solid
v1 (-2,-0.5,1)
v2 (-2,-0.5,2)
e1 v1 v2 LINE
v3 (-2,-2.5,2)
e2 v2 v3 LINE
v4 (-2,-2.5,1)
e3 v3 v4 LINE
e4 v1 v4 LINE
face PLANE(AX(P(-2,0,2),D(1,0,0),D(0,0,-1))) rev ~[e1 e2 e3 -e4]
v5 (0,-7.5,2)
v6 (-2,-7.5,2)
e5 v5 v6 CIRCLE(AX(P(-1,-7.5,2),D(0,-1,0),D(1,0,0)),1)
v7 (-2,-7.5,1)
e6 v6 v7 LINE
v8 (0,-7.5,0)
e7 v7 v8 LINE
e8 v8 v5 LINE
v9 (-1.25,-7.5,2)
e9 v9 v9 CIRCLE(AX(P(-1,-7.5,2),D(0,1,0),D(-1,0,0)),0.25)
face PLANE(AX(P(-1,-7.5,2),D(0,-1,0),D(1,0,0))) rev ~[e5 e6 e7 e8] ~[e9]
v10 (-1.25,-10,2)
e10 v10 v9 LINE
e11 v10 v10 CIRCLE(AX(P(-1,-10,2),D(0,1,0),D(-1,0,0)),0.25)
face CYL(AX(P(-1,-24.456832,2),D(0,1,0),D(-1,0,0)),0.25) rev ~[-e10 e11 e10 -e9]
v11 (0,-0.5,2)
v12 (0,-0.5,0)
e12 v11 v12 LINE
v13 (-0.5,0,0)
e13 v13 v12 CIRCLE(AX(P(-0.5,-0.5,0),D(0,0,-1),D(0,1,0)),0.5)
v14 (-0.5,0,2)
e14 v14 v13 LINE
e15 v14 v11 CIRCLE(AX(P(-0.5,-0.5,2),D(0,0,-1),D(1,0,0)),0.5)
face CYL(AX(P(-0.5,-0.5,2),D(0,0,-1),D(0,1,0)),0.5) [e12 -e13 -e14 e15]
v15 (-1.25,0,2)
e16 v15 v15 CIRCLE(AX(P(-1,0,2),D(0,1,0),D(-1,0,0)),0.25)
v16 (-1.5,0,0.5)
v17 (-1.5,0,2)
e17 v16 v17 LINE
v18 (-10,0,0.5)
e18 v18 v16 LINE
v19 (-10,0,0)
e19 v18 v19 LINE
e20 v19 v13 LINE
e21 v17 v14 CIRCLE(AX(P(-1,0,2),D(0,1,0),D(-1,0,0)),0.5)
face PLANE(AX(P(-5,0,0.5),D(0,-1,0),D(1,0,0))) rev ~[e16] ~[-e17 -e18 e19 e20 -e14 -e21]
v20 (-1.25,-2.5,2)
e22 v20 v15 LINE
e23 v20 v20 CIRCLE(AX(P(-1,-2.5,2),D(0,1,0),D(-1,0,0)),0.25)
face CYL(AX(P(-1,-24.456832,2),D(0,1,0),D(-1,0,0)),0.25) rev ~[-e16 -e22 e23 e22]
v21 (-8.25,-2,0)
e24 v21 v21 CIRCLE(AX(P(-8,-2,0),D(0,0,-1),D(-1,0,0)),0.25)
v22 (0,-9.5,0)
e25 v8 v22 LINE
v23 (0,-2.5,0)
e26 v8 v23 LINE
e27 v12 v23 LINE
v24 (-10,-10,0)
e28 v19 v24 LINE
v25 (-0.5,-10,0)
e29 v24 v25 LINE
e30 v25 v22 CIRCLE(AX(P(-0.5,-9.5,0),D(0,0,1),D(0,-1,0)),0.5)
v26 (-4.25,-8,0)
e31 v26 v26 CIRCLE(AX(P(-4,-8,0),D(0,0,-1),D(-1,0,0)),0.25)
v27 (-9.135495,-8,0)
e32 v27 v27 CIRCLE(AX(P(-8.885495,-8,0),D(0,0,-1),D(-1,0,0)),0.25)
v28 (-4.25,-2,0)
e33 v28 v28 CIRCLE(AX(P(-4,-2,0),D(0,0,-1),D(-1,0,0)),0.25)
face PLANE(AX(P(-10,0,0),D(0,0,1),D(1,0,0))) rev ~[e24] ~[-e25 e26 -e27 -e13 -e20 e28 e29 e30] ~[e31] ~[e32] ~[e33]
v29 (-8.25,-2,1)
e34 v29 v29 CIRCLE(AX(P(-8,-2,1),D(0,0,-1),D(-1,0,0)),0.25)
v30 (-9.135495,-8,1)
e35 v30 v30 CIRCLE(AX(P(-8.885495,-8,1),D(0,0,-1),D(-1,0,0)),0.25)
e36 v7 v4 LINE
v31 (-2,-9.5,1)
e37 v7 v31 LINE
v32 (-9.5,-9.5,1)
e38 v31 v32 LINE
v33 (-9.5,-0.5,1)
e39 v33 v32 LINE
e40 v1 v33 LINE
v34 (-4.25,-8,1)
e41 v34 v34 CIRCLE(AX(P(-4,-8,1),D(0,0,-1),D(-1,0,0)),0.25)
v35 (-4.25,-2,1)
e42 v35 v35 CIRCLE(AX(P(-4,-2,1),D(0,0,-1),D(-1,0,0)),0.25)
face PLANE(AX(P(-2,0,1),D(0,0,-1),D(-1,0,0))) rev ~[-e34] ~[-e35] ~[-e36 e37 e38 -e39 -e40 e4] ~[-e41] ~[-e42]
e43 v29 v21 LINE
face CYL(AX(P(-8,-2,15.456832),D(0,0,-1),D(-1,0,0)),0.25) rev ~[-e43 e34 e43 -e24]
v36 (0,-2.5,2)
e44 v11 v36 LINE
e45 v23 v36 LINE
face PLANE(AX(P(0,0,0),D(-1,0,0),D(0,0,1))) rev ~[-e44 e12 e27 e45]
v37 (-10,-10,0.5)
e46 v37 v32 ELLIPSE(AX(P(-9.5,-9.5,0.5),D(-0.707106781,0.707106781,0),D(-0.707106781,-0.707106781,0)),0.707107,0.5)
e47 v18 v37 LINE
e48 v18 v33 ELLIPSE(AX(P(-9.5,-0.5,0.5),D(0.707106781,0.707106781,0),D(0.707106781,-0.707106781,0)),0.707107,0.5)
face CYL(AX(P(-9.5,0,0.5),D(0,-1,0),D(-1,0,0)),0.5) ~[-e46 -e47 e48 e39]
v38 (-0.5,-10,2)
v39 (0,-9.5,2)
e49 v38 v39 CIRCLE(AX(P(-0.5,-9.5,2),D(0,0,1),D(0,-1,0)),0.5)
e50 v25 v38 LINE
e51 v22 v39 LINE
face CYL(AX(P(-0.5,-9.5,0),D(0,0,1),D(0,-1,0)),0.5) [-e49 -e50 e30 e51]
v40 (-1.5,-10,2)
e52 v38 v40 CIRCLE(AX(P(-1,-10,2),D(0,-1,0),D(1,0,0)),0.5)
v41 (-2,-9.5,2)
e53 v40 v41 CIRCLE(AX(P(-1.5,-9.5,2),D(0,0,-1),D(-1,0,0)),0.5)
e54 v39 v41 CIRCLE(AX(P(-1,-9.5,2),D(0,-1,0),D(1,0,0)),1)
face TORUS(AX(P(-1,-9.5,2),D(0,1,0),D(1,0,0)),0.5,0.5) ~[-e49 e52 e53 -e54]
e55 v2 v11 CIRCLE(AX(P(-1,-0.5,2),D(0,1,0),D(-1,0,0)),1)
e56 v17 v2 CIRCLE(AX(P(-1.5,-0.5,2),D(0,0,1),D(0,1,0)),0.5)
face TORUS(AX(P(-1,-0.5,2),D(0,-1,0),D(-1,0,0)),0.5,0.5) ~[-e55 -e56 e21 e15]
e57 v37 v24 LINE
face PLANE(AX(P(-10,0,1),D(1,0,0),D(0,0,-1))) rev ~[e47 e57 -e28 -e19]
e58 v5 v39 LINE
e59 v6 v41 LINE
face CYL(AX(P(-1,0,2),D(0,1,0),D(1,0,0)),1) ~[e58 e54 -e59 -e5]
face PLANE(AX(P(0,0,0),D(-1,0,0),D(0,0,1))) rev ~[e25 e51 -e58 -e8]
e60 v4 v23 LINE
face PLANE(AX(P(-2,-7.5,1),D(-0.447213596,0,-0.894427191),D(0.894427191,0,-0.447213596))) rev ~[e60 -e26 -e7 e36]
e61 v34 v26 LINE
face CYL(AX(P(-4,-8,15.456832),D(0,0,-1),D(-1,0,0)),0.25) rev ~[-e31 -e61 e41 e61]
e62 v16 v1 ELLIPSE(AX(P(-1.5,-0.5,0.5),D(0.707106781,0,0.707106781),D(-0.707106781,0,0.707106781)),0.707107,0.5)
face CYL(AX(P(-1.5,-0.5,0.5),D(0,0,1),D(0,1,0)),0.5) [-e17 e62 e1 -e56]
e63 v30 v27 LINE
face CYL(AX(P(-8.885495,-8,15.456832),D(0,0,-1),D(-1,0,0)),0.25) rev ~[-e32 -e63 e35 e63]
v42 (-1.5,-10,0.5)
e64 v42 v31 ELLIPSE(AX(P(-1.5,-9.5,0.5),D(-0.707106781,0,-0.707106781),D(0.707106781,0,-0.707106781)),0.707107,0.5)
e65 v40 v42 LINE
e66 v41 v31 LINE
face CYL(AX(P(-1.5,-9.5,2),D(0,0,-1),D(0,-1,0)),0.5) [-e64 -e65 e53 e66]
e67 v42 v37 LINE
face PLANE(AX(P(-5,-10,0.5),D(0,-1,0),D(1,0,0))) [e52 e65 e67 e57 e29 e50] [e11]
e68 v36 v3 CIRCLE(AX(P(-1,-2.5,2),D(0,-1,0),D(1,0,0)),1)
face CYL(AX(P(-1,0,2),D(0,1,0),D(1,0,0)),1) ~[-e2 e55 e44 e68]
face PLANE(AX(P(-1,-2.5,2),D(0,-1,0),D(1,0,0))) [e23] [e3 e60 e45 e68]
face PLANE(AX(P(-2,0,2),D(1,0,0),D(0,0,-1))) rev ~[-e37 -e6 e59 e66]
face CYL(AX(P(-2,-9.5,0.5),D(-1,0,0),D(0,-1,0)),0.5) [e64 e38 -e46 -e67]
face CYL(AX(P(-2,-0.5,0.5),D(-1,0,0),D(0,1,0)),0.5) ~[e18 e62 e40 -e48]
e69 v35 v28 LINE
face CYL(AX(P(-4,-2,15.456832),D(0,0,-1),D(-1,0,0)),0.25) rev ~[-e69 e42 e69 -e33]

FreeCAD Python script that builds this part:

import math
import FreeCAD as App
import Part
import Sketcher
Q = App.Units.Quantity


def edges_at(feature, points):
    """Names of the edges that pass closest to the given points."""
    edges = feature.Shape.Edges
    near = lambda p: min(range(len(edges)), key=lambda i: edges[i].distToShape(Part.Vertex(*p))[0])
    return sorted({f"Edge{near(p) + 1}" for p in points})

doc = App.newDocument("Part")
params = doc.addObject("Spreadsheet::Sheet", "Params")
for row, (alias, value) in enumerate([
    ("sketch1_radius", "1 mm"),
    ("sketch1_width", "10 mm"),
    ("sketch1_height", "2 mm"),
    ("pad1_length", "10 mm"),
    ("sketch2_diameter", "0.5 mm"),
    ("hole_diameter", "0.5 mm"),
    ("sketch3_diameter", "0.5 mm"),
    ("hole2_diameter", "0.5 mm"),
    ("sketch4_radius", "1 mm"),
    ("sketch4_height", "1 mm"),
    ("sketch4_height2", "2 mm"),
    ("pocket1_length", "5 mm"),
    ("fillet_radius", "0.5 mm"),
    ("fillet2_radius", "0.5 mm"),
    ("fillet3_radius", "0.5 mm"),
], start=1):
    params.set(f"A{row}", alias)
    params.set(f"B{row}", "=" + value)
    params.setAlias(f"B{row}", alias)

body = doc.addObject("PartDesign::Body", "Body")

# Sketch on XZ plane
sketch1 = body.newObject("Sketcher::SketchObject", "Sketch")
sketch1.AttachmentSupport = (doc.getObject("XZ_Plane"), [""])
sketch1.MapMode = "FlatFace"
sketch1.addGeometry(Part.LineSegment(App.Vector(-10, 0, 0), App.Vector(0, 0, 0)), False)
sketch1.addGeometry(Part.LineSegment(App.Vector(0, 0, 0), App.Vector(0, 2, 0)), False)
sketch1.addGeometry(Part.ArcOfCircle(Part.Circle(App.Vector(-1, 2, 0), App.Vector(0, 0, 1), 1), math.radians(0), math.radians(180)), False)
sketch1.addGeometry(Part.LineSegment(App.Vector(-2, 2, 0), App.Vector(-2, 1, 0)), False)
sketch1.addGeometry(Part.LineSegment(App.Vector(-2, 1, 0), App.Vector(-10, 1, 0)), False)
sketch1.addGeometry(Part.LineSegment(App.Vector(-10, 1, 0), App.Vector(-10, 0, 0)), False)
sketch1.addConstraint(Sketcher.Constraint("Coincident", 0, 2, 1, 1))
sketch1.addConstraint(Sketcher.Constraint("Tangent", 1, 2, 2, 1))
sketch1.addConstraint(Sketcher.Constraint("Tangent", 2, 2, 3, 1))
sketch1.addConstraint(Sketcher.Constraint("Coincident", 3, 2, 4, 1))
sketch1.addConstraint(Sketcher.Constraint("Coincident", 4, 2, 5, 1))
sketch1.addConstraint(Sketcher.Constraint("Coincident", 5, 2, 0, 1))
sketch1.addConstraint(Sketcher.Constraint("Horizontal", 0))
sketch1.addConstraint(Sketcher.Constraint("Vertical", 1))
sketch1.addConstraint(Sketcher.Constraint("Vertical", 3))
sketch1.addConstraint(Sketcher.Constraint("Horizontal", 4))
sketch1.addConstraint(Sketcher.Constraint("Vertical", 5))
sketch1.addConstraint(Sketcher.Constraint("Coincident", 0, 2, -1, 1))
sketch1.addConstraint(Sketcher.Constraint("Equal", 3, 5))
sketch1.addConstraint(Sketcher.Constraint("Radius", 2, Q("1 mm")))
sketch1.addConstraint(Sketcher.Constraint("DistanceX", 0, 1, 0, 2, Q("10 mm")))
sketch1.addConstraint(Sketcher.Constraint("DistanceY", 1, 1, 1, 2, Q("2 mm")))
sketch1.setExpression("Constraints[13]", "Params.sketch1_radius")
sketch1.setExpression("Constraints[14]", "Params.sketch1_width")
sketch1.setExpression("Constraints[15]", "Params.sketch1_height")
pad1 = body.newObject("PartDesign::Pad", "Pad")
pad1.Profile = sketch1
pad1.setExpression("Length", "Params.pad1_length")

# Sketch on XY plane
sketch2 = body.newObject("Sketcher::SketchObject", "Sketch001")
sketch2.AttachmentSupport = (doc.getObject("XY_Plane"), [""])
sketch2.MapMode = "FlatFace"
sketch2.AttachmentOffset = App.Placement(App.Vector(0, 0, 1), App.Rotation())
sketch2.addGeometry(Part.Circle(App.Vector(-8, -2, 0), App.Vector(0, 0, 1), 0.25), False)
sketch2.addGeometry(Part.Circle(App.Vector(-8.89, -8, 0), App.Vector(0, 0, 1), 0.25), False)
sketch2.addGeometry(Part.Circle(App.Vector(-4, -8, 0), App.Vector(0, 0, 1), 0.25), False)
sketch2.addGeometry(Part.Circle(App.Vector(-4, -2, 0), App.Vector(0, 0, 1), 0.25), False)
sketch2.addConstraint(Sketcher.Constraint("Equal", 0, 1))
sketch2.addConstraint(Sketcher.Constraint("Equal", 1, 2))
sketch2.addConstraint(Sketcher.Constraint("Equal", 2, 3))
sketch2.addConstraint(Sketcher.Constraint("Horizontal", 1, 3, 2, 3))
sketch2.addConstraint(Sketcher.Constraint("Horizontal", 0, 3, 3, 3))
sketch2.addConstraint(Sketcher.Constraint("Vertical", 2, 3, 3, 3))
sketch2.addConstraint(Sketcher.Constraint("Diameter", 0, Q("0.5 mm")))
sketch2.addConstraint(Sketcher.Constraint("DistanceX", 0, 3, -1, 1, Q("8 mm")))
sketch2.addConstraint(Sketcher.Constraint("DistanceY", 0, 3, -1, 1, Q("2 mm")))
sketch2.addConstraint(Sketcher.Constraint("DistanceY", 1, 3, -1, 1, Q("8 mm")))
sketch2.addConstraint(Sketcher.Constraint("DistanceX", 2, 3, -1, 1, Q("4 mm")))
sketch2.addConstraint(Sketcher.Constraint("DistanceX", 1, 3, -1, 1, Q("8.885495 mm")))
sketch2.setExpression("Constraints[6]", "Params.sketch2_diameter")
doc.recompute()
hole = body.newObject("PartDesign::Hole", "Hole")
hole.Profile = sketch2
hole.ThreadType = "None"
hole.setExpression("Diameter", "Params.hole_diameter")
hole.DepthType = "ThroughAll"

# Sketch on XZ plane
sketch3 = body.newObject("Sketcher::SketchObject", "Sketch002")
sketch3.AttachmentSupport = (doc.getObject("XZ_Plane"), [""])
sketch3.MapMode = "FlatFace"
sketch3.AttachmentOffset = App.Placement(App.Vector(0, 0, 10), App.Rotation())
sketch3.addGeometry(Part.Circle(App.Vector(-1, 2, 0), App.Vector(0, 0, 1), 0.25), False)
sketch3.addConstraint(Sketcher.Constraint("Diameter", 0, Q("0.5 mm")))
sketch3.addConstraint(Sketcher.Constraint("DistanceX", 0, 3, -1, 1, Q("1 mm")))
sketch3.addConstraint(Sketcher.Constraint("DistanceY", -1, 1, 0, 3, Q("2 mm")))
sketch3.setExpression("Constraints[0]", "Params.sketch3_diameter")
doc.recompute()
hole2 = body.newObject("PartDesign::Hole", "Hole001")
hole2.Profile = sketch3
hole2.ThreadType = "None"
hole2.setExpression("Diameter", "Params.hole2_diameter")
hole2.DepthType = "ThroughAll"

# Sketch on XZ plane
sketch4 = body.newObject("Sketcher::SketchObject", "Sketch003")
sketch4.AttachmentSupport = (doc.getObject("XZ_Plane"), [""])
sketch4.MapMode = "FlatFace"
sketch4.AttachmentOffset = App.Placement(App.Vector(0, 0, 7.5), App.Rotation())
sketch4.addGeometry(Part.ArcOfCircle(Part.Circle(App.Vector(-1, 2, 0), App.Vector(0, 0, 1), 1), math.radians(0), math.radians(180)), False)
sketch4.addGeometry(Part.LineSegment(App.Vector(-2, 2, 0), App.Vector(-2, 1, 0)), False)
sketch4.addGeometry(Part.LineSegment(App.Vector(-2, 1, 0), App.Vector(0, 0, 0)), False)
sketch4.addGeometry(Part.LineSegment(App.Vector(0, 0, 0), App.Vector(0, 2, 0)), False)
sketch4.addConstraint(Sketcher.Constraint("Tangent", 0, 2, 1, 1))
sketch4.addConstraint(Sketcher.Constraint("Coincident", 1, 2, 2, 1))
sketch4.addConstraint(Sketcher.Constraint("Coincident", 2, 2, 3, 1))
sketch4.addConstraint(Sketcher.Constraint("Tangent", 3, 2, 0, 1))
sketch4.addConstraint(Sketcher.Constraint("Vertical", 1))
sketch4.addConstraint(Sketcher.Constraint("Vertical", 3))
sketch4.addConstraint(Sketcher.Constraint("Coincident", 2, 2, -1, 1))
sketch4.addConstraint(Sketcher.Constraint("Radius", 0, Q("1 mm")))
sketch4.addConstraint(Sketcher.Constraint("DistanceY", 1, 2, 1, 1, Q("1 mm")))
sketch4.addConstraint(Sketcher.Constraint("DistanceY", 3, 1, 3, 2, Q("2 mm")))
sketch4.setExpression("Constraints[7]", "Params.sketch4_radius")
sketch4.setExpression("Constraints[8]", "Params.sketch4_height")
sketch4.setExpression("Constraints[9]", "Params.sketch4_height2")
pocket1 = body.newObject("PartDesign::Pocket", "Pocket")
pocket1.Profile = sketch4
pocket1.setExpression("Length", "Params.pocket1_length")
doc.recompute()

fillet = body.newObject("PartDesign::Fillet", "Fillet")
fillet.Base = (pocket1, edges_at(pocket1, [(-10, -5, 1), (-6, -10, 1), (-6, 0, 1)]))
fillet.setExpression("Radius", "Params.fillet_radius")
doc.recompute()

fillet2 = body.newObject("PartDesign::Fillet", "Fillet001")
fillet2.Base = (fillet, edges_at(fillet, [(0, -10, 1), (-1, -10, 3), (-2, -10, 1.25)]))
fillet2.setExpression("Radius", "Params.fillet2_radius")
doc.recompute()

fillet3 = body.newObject("PartDesign::Fillet", "Fillet002")
fillet3.Base = (fillet2, edges_at(fillet2, [(-2, 0, 1.25), (0, 0, 1), (-1, 0, 3)]))
fillet3.setExpression("Radius", "Params.fillet3_radius")

doc.recompute()
